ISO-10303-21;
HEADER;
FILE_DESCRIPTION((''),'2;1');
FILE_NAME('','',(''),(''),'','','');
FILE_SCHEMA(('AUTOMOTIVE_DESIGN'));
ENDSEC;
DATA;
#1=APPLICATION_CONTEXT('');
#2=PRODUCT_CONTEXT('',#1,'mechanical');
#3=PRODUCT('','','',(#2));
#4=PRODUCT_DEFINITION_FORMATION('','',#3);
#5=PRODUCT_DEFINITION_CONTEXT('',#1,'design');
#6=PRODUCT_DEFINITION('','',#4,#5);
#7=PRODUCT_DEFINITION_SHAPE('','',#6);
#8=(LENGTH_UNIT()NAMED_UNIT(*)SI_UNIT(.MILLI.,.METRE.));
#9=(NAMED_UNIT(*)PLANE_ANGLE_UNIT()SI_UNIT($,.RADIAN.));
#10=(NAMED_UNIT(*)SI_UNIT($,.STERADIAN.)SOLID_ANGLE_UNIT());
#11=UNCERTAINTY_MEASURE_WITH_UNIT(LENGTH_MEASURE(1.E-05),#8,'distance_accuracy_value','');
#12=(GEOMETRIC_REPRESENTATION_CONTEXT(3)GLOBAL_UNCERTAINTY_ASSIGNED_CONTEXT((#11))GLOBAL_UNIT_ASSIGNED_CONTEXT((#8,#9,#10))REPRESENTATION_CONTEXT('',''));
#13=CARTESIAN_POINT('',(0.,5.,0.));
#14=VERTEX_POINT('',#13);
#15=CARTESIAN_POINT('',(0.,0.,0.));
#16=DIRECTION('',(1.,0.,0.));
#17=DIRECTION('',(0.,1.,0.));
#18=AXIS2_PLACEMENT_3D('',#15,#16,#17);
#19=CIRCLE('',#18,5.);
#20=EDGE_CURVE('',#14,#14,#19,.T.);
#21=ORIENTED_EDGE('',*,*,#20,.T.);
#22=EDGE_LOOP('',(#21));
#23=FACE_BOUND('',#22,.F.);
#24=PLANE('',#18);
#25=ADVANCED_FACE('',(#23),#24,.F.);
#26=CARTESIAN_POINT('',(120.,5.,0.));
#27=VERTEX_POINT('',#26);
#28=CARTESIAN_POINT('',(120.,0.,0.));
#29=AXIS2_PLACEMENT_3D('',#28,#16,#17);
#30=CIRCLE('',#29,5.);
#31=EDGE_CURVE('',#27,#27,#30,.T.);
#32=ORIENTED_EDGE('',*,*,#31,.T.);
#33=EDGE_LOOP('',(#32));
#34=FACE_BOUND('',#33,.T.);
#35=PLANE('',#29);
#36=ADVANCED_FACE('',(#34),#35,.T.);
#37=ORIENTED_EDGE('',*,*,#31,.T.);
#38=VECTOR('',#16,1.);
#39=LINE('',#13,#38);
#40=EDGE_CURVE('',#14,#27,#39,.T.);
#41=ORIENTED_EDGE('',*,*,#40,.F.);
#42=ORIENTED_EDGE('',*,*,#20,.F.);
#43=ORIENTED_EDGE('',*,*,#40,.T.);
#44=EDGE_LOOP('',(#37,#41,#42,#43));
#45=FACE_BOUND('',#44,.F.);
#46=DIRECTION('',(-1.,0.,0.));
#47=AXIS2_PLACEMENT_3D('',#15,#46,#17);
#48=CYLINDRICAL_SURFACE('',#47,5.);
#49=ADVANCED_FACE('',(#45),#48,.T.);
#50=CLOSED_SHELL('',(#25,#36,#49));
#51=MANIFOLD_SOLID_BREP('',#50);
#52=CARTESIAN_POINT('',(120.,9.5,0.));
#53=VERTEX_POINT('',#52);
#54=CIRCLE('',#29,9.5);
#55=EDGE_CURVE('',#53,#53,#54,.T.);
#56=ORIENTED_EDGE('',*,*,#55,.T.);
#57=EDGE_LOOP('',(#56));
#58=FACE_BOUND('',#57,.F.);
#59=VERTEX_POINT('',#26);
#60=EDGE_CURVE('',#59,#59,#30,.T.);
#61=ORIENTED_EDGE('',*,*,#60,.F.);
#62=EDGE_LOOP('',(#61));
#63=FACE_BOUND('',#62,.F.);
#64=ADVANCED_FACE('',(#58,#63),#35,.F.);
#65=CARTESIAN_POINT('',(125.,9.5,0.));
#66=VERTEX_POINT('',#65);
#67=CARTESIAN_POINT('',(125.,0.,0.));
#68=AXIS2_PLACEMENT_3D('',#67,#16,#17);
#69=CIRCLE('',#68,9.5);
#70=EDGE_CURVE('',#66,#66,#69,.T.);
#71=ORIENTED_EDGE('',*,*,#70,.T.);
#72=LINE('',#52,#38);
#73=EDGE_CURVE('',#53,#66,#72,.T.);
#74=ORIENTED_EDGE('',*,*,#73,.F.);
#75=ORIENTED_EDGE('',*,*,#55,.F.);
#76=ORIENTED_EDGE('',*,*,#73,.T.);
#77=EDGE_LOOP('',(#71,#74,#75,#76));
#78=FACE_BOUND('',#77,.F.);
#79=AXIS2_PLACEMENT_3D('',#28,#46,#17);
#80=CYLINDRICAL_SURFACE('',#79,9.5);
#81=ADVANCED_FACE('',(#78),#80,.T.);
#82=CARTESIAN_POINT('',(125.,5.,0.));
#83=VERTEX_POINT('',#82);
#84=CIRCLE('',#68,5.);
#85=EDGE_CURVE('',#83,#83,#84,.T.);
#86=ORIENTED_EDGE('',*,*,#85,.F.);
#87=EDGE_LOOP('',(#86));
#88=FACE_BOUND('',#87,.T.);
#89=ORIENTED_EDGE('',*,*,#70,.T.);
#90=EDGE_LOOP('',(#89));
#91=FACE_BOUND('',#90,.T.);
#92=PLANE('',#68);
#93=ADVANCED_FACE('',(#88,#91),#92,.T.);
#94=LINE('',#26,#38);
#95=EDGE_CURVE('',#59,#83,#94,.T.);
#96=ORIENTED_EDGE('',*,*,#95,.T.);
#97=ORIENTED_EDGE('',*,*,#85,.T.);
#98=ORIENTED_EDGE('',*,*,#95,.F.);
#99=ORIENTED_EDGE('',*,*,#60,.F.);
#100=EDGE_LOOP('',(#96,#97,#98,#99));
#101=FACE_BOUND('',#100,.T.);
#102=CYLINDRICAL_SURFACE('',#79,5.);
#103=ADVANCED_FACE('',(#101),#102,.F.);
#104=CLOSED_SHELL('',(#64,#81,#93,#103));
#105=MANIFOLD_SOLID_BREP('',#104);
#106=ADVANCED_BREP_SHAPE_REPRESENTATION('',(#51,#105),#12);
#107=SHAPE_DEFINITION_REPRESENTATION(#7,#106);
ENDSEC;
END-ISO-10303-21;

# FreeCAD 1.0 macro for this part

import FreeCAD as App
import Part
import Sketcher

doc = App.newDocument("Part")
params = doc.addObject("Spreadsheet::Sheet", "Params")
for row, (alias, value) in enumerate([
    ("sketch1_diameter", "10 mm"),
    ("pad1_length", "120 mm"),
    ("sketch2_diameter", "19 mm"),
    ("sketch2_diameter2", "10 mm"),
    ("pad2_length", "5 mm"),
], start=1):
    params.set(f"A{row}", alias)
    params.set(f"B{row}", "=" + value)
    params.setAlias(f"B{row}", alias)

body = doc.addObject("PartDesign::Body", "Body")

sketch1 = doc.addObject("Sketcher::SketchObject", "Sketch")
body.addObject(sketch1)
sketch1.AttachmentSupport = (doc.YZ_Plane, [""])
sketch1.MapMode = "FlatFace"
sketch1.addGeometry(Part.Circle(App.Vector(0, 0, 0), App.Vector(0, 0, 1), 5), False)
sketch1.addConstraint(Sketcher.Constraint("Coincident", 0, 3, -1, 1))
sketch1.addConstraint(Sketcher.Constraint("Diameter", 0, 10.0))
sketch1.setExpression("Constraints[1]", "Params.sketch1_diameter")
pad1 = doc.addObject("PartDesign::Pad", "Pad")
body.addObject(pad1)
pad1.Profile = sketch1
pad1.setExpression("Length", "Params.pad1_length")
body2 = doc.addObject("PartDesign::Body", "Body001")

sketch2 = doc.addObject("Sketcher::SketchObject", "Sketch001")
body2.addObject(sketch2)
sketch2.AttachmentSupport = (doc.getObject("YZ_Plane001"), [""])
sketch2.MapMode = "FlatFace"
sketch2.AttachmentOffset = App.Placement(App.Vector(0, 0, 120), App.Rotation())
sketch2.addGeometry(Part.Circle(App.Vector(0, 0, 0), App.Vector(0, 0, 1), 10), False)
sketch2.addGeometry(Part.Circle(App.Vector(0, 0, 0), App.Vector(0, 0, 1), 5), False)
sketch2.addConstraint(Sketcher.Constraint("Coincident", 0, 3, -1, 1))
sketch2.addConstraint(Sketcher.Constraint("Coincident", 1, 3, -1, 1))
sketch2.addConstraint(Sketcher.Constraint("Diameter", 0, 19.0))
sketch2.addConstraint(Sketcher.Constraint("Diameter", 1, 10.0))
sketch2.setExpression("Constraints[2]", "Params.sketch2_diameter")
sketch2.setExpression("Constraints[3]", "Params.sketch2_diameter2")
pad2 = doc.addObject("PartDesign::Pad", "Pad001")
body2.addObject(pad2)
pad2.Profile = sketch2
pad2.setExpression("Length", "Params.pad2_length")

doc.recompute()
